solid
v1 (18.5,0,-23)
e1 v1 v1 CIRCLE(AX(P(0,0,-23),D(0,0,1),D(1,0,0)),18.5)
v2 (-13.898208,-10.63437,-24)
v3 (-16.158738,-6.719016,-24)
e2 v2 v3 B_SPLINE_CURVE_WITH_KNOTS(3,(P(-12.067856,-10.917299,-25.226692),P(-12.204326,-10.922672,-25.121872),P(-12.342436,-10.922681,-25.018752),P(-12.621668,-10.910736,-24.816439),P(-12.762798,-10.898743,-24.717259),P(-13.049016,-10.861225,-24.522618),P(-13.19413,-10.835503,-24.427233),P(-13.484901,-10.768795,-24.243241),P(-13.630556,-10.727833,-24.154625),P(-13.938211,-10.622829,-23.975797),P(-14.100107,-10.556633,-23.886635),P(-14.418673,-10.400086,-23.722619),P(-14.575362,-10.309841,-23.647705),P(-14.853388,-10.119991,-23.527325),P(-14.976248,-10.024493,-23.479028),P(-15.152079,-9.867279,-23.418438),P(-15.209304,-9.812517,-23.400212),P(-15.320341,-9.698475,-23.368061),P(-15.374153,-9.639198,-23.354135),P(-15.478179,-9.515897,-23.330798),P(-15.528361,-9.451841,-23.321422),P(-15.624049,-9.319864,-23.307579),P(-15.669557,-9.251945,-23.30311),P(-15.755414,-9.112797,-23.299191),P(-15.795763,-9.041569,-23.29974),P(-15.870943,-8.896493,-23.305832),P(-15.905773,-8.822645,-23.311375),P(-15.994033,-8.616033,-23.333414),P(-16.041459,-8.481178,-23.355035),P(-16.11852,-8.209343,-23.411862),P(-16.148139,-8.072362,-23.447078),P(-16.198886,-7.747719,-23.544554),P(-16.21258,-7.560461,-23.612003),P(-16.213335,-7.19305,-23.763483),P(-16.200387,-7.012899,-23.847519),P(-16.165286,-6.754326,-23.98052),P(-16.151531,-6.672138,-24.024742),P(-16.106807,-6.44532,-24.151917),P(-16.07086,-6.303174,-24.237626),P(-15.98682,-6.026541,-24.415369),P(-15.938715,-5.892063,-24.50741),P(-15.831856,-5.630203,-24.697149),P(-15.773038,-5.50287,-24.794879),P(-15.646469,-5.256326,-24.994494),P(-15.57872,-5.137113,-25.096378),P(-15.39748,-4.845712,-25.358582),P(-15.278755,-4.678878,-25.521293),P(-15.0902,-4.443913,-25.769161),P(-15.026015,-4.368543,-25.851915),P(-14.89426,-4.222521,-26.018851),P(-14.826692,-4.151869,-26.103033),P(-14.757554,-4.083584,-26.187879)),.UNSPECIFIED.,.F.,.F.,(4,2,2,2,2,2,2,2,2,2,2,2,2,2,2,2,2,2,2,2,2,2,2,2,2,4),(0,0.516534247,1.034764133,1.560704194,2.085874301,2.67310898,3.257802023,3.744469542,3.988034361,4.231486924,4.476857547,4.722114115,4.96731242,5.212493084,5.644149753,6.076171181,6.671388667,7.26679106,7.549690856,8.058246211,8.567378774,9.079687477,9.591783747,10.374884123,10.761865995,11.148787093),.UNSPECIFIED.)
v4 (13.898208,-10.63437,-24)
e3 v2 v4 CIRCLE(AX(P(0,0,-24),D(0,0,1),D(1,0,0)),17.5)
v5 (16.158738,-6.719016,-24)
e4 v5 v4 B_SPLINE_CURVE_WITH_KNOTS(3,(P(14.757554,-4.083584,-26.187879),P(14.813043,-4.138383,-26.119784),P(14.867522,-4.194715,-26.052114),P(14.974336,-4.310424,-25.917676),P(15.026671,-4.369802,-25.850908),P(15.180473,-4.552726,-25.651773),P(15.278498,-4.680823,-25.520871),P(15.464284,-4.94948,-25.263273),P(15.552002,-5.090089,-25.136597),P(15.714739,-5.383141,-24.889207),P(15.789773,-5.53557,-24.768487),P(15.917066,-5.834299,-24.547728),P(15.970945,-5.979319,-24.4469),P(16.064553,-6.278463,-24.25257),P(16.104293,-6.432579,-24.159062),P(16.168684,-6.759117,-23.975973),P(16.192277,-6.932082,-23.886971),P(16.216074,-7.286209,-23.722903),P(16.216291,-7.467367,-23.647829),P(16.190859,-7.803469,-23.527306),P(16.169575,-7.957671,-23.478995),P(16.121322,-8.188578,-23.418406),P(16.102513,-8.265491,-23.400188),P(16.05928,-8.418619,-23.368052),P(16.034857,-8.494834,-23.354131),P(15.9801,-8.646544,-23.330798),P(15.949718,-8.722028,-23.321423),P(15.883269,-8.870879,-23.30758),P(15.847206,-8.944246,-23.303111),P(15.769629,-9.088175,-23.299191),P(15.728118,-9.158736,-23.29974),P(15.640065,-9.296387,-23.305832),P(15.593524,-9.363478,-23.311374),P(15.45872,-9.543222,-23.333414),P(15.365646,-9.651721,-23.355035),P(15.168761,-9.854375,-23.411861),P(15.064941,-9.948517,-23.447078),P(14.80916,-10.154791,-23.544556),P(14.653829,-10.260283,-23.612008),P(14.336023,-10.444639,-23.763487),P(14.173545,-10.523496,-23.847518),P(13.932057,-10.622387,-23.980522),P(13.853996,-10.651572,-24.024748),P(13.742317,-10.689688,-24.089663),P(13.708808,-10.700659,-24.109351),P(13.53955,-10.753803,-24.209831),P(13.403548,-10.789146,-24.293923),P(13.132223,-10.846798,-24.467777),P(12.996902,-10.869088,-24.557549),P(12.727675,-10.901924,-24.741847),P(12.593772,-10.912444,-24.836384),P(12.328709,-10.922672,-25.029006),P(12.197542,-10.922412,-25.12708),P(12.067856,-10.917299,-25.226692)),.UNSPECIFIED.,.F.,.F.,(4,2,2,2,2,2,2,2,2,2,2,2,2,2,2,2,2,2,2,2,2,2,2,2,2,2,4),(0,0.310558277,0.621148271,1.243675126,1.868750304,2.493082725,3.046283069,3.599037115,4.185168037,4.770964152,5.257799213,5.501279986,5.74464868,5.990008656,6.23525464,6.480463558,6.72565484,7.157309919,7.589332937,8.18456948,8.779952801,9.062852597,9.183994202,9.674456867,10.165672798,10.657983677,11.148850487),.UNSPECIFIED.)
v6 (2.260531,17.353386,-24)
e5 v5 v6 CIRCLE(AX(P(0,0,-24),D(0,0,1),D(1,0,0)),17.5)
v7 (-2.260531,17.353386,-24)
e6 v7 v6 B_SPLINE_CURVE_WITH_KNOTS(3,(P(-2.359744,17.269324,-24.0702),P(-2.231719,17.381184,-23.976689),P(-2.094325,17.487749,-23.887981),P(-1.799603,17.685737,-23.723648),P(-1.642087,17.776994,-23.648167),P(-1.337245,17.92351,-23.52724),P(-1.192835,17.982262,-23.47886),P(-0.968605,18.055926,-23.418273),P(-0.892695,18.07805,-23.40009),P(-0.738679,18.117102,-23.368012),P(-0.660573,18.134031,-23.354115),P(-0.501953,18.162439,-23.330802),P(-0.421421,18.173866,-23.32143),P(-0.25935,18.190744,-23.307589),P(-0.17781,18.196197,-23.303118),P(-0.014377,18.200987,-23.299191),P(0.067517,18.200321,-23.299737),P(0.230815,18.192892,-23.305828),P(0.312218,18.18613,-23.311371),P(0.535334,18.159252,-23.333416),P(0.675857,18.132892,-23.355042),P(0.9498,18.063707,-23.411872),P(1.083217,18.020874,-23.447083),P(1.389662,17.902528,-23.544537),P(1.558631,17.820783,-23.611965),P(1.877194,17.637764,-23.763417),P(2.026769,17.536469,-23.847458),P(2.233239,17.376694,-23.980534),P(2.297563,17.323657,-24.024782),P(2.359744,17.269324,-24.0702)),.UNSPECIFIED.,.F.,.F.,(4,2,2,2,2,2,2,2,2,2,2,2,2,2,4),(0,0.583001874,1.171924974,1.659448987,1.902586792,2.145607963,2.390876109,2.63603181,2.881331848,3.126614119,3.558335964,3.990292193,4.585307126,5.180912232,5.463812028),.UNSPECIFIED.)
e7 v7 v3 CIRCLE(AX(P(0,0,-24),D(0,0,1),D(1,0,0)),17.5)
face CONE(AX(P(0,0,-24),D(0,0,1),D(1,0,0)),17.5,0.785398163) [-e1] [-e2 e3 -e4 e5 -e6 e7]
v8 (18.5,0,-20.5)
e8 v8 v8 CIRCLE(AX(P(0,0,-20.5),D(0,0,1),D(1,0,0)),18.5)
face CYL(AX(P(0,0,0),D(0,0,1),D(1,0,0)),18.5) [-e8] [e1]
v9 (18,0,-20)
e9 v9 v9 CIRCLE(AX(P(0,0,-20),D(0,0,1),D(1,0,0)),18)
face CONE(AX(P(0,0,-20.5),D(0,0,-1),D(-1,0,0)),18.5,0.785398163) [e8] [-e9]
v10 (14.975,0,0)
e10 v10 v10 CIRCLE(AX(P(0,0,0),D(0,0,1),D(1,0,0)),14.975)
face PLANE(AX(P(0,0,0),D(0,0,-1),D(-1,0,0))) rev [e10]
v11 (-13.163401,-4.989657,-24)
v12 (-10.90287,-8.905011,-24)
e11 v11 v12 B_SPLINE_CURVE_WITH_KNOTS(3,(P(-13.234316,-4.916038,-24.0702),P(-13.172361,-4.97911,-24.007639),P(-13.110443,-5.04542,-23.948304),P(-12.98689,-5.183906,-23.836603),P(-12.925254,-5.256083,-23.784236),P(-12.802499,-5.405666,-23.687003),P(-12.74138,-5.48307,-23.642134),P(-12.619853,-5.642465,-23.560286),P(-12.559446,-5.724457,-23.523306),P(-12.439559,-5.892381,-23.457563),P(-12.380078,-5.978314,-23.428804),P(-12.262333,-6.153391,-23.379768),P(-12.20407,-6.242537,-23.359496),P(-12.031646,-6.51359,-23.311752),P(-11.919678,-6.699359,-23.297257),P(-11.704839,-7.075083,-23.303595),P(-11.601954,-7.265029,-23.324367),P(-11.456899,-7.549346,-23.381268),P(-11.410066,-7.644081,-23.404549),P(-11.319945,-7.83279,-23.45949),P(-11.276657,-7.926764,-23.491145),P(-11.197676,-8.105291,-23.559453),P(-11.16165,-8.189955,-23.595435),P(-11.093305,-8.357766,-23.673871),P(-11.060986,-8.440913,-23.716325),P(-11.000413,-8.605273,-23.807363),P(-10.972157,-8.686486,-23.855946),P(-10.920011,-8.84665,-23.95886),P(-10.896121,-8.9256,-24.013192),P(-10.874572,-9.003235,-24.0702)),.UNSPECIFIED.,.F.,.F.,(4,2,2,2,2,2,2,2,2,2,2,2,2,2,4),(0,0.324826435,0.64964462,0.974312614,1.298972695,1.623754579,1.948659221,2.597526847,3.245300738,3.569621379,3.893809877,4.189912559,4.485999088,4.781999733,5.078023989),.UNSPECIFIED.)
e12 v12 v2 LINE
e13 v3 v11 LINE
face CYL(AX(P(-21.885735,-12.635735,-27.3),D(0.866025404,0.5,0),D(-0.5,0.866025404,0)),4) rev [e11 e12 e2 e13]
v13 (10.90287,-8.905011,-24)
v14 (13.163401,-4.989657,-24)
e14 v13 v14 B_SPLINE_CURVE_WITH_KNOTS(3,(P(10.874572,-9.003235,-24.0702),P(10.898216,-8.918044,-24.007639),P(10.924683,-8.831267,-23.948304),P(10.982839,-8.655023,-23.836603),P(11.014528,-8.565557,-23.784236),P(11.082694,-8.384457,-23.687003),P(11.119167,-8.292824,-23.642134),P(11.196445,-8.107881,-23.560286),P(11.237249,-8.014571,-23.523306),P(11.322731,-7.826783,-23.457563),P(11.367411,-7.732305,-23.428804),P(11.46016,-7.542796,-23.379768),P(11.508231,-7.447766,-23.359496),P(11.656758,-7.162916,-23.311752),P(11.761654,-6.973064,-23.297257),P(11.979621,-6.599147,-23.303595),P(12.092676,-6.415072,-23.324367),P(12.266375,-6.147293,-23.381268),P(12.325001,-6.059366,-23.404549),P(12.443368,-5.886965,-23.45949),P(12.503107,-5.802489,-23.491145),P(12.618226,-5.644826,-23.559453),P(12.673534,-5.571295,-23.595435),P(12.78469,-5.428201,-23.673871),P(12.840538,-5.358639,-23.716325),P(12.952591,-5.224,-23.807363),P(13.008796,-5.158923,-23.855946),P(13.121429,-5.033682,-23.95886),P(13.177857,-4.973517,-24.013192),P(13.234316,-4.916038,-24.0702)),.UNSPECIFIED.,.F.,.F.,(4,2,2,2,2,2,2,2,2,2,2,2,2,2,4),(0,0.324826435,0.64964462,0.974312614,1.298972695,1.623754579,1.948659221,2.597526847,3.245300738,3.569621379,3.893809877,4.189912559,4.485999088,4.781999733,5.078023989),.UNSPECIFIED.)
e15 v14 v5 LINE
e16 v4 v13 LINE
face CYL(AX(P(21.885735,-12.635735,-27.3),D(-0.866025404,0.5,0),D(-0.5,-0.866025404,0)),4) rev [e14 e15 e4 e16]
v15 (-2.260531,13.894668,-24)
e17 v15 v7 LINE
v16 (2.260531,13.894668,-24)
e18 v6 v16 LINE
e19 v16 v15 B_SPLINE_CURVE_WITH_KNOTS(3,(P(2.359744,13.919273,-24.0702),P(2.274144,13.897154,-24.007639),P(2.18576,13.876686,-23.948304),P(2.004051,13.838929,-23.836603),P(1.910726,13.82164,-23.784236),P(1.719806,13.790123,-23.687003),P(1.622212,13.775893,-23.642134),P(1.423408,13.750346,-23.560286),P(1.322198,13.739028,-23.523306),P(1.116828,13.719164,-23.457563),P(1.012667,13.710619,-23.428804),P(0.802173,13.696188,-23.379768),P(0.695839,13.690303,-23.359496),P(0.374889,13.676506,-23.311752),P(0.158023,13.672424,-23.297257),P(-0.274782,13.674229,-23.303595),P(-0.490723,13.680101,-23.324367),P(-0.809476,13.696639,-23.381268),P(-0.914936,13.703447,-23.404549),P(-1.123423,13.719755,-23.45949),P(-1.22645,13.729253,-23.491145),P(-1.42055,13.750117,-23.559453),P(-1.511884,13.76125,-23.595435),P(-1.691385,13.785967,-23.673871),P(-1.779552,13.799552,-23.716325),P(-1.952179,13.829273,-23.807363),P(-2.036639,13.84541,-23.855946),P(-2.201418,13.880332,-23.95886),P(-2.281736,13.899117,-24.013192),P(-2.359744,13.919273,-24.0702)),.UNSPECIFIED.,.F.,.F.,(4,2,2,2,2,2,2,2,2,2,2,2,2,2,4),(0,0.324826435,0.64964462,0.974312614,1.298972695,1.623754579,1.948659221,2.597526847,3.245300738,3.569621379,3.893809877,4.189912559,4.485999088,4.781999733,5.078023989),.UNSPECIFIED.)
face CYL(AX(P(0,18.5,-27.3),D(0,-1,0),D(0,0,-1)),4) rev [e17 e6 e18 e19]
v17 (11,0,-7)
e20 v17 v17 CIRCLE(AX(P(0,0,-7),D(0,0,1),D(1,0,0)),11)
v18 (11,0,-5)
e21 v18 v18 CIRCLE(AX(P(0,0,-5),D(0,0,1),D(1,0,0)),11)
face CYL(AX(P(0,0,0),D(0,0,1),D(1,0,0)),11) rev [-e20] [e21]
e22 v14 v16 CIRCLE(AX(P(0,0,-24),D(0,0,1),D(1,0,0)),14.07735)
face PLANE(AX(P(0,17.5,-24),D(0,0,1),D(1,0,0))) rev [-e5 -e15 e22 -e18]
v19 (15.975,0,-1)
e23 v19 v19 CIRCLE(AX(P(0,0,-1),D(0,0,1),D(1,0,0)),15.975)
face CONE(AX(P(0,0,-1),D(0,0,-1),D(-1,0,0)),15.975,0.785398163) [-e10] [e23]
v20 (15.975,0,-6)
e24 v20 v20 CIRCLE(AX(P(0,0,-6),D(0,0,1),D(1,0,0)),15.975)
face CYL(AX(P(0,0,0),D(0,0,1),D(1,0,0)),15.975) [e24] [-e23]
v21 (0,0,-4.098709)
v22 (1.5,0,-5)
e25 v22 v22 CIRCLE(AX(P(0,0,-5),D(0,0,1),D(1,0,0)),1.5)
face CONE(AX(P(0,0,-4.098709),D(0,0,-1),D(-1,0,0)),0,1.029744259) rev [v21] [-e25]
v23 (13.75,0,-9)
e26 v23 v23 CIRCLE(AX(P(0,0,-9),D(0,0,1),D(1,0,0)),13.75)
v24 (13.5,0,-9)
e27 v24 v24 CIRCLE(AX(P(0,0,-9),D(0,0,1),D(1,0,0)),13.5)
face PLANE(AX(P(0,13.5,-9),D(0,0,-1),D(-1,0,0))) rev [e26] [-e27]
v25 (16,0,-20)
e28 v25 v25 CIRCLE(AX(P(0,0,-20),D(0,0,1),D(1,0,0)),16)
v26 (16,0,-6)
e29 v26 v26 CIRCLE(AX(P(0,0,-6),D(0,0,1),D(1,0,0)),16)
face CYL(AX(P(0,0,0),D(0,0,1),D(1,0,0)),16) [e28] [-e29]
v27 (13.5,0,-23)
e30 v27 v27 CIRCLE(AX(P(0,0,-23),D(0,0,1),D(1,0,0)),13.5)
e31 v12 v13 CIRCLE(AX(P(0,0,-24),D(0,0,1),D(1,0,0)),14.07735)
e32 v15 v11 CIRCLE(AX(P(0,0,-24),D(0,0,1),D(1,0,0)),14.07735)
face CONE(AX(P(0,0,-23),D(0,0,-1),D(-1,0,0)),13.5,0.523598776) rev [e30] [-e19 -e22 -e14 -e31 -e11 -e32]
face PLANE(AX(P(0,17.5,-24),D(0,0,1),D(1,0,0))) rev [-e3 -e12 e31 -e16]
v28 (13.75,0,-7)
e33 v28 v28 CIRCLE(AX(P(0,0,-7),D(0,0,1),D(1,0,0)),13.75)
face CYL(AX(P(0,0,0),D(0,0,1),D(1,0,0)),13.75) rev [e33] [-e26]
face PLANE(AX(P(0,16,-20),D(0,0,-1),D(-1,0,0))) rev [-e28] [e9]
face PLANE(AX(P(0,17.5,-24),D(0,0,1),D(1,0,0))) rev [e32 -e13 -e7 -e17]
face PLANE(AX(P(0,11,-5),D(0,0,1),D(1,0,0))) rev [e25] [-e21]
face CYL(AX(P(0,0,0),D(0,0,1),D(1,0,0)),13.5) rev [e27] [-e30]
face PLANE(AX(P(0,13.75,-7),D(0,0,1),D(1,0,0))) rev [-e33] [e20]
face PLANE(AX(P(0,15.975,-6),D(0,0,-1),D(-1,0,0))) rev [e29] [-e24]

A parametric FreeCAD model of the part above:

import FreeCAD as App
import Part
import Sketcher
Q = App.Units.Quantity


def add_polygon(sketch, points):
    """Adds a closed chain of lines whose ends are joined by coincident constraints."""
    first, n = sketch.GeometryCount, len(points)
    for a, b in zip(points, points[1:] + points[:1]):
        sketch.addGeometry(Part.LineSegment(App.Vector(*a, 0), App.Vector(*b, 0)), False)
    for i in range(n):
        sketch.addConstraint(Sketcher.Constraint("Coincident", first + i, 2, first + (i + 1) % n, 1))

doc = App.newDocument("Part")
body = doc.addObject("PartDesign::Body", "Body")

# Sketch on YZ plane
sketch1 = body.newObject("Sketcher::SketchObject", "Sketch")
sketch1.AttachmentSupport = (doc.getObject("YZ_Plane"), [""])
sketch1.MapMode = "FlatFace"
add_polygon(sketch1, [(14.975, 0), (0, 0), (0, -4.099), (1.5, -5), (11, -5), (11, -7), (13.75, -7), (13.75, -9), (13.5, -9), (13.5, -23), (14.077, -24), (17.5, -24), (18.5, -23), (18.5, -20.5), (18, -20), (16, -20), (16, -6), (15.975, -6), (15.975, -1)])  # lines 0-18
sketch1.addConstraint(Sketcher.Constraint("Horizontal", 0))
sketch1.addConstraint(Sketcher.Constraint("Vertical", 1))
sketch1.addConstraint(Sketcher.Constraint("Horizontal", 3))
sketch1.addConstraint(Sketcher.Constraint("Vertical", 4))
sketch1.addConstraint(Sketcher.Constraint("Horizontal", 5))
sketch1.addConstraint(Sketcher.Constraint("Vertical", 6))
sketch1.addConstraint(Sketcher.Constraint("Horizontal", 7))
sketch1.addConstraint(Sketcher.Constraint("Vertical", 8))
sketch1.addConstraint(Sketcher.Constraint("Horizontal", 10))
sketch1.addConstraint(Sketcher.Constraint("Vertical", 12))
sketch1.addConstraint(Sketcher.Constraint("Horizontal", 14))
sketch1.addConstraint(Sketcher.Constraint("Vertical", 15))
sketch1.addConstraint(Sketcher.Constraint("Horizontal", 16))
sketch1.addConstraint(Sketcher.Constraint("Vertical", 17))
sketch1.addConstraint(Sketcher.Constraint("Coincident", 0, 2, -1, 1))
sketch1.addConstraint(Sketcher.Constraint("Perpendicular", 11, 13))
sketch1.addConstraint(Sketcher.Constraint("Parallel", 13, 18))
sketch1.addConstraint(Sketcher.Constraint("Horizontal", 8, 2, 11, 2))
sketch1.addConstraint(Sketcher.Constraint("Equal", 14, 4))
sketch1.addConstraint(Sketcher.Constraint("Equal", 4, 6))
sketch1.addConstraint(Sketcher.Constraint("Equal", 8, 15))
sketch1.addConstraint(Sketcher.Constraint("Equal", 11, 18))
sketch1.addConstraint(Sketcher.Constraint("DistanceX", 14, 2, 14, 1, 2.0))
sketch1.addConstraint(Sketcher.Constraint("DistanceY", 8, 2, 8, 1, 14.0))
sketch1.addConstraint(Sketcher.Constraint("DistanceY", 17, 1, 17, 2, 5.0))
sketch1.addConstraint(Sketcher.Constraint("Angle", 2, Q("-31 deg")))
sketch1.addConstraint(Sketcher.Constraint("Angle", 9, Q("-60 deg")))
sketch1.addConstraint(Sketcher.Constraint("Angle", 11, Q("45 deg")))
sketch1.addConstraint(Sketcher.Constraint("DistanceX", 3, 1, 3, 2, 9.5))
sketch1.addConstraint(Sketcher.Constraint("DistanceY", 12, 1, 12, 2, 2.5))
sketch1.addConstraint(Sketcher.Constraint("DistanceY", 2, 2, -1, 1, 5.0))
sketch1.addConstraint(Sketcher.Constraint("DistanceX", -1, 1, 3, 2, 11.0))
sketch1.addConstraint(Sketcher.Constraint("DistanceY", 9, 2, -1, 1, 24.0))
sketch1.addConstraint(Sketcher.Constraint("DistanceX", -1, 1, 13, 2, 18.0))
sketch1.addConstraint(Sketcher.Constraint("DistanceX", 2, 2, 7, 2, 12.0))
sketch1.addConstraint(Sketcher.Constraint("DistanceX", 5, 1, 5, 2, 2.75))
sketch1.addConstraint(Sketcher.Constraint("DistanceX", 0, 2, 0, 1, 14.975))
revolution = body.newObject("PartDesign::Revolution", "Revolution")
revolution.Profile = sketch1
revolution.ReferenceAxis = (sketch1, ["V_Axis"])
revolution.Angle = 360

# Sketch on XZ plane
sketch2 = body.newObject("Sketcher::SketchObject", "Sketch001")
sketch2.AttachmentSupport = (doc.getObject("XZ_Plane"), [""])
sketch2.MapMode = "FlatFace"
sketch2.addGeometry(Part.Circle(App.Vector(0, -27.3, 0), App.Vector(0, 0, 1), 4), False)
sketch2.addConstraint(Sketcher.Constraint("PointOnObject", 0, 3, -2))
sketch2.addConstraint(Sketcher.Constraint("Diameter", 0, 8.0))
sketch2.addConstraint(Sketcher.Constraint("DistanceY", 0, 3, -1, 1, 27.3))
pocket1 = body.newObject("PartDesign::Pocket", "Pocket")
pocket1.Profile = sketch2
pocket1.Type = "ThroughAll"
doc.recompute()

polarpattern = body.newObject("PartDesign::PolarPattern", "PolarPattern")
polarpattern.Originals = [pocket1]
polarpattern.Axis = (doc.getObject("Z_Axis"), [""])
polarpattern.Angle = 360
polarpattern.Occurrences = 3
body.Tip = polarpattern

doc.recompute()
